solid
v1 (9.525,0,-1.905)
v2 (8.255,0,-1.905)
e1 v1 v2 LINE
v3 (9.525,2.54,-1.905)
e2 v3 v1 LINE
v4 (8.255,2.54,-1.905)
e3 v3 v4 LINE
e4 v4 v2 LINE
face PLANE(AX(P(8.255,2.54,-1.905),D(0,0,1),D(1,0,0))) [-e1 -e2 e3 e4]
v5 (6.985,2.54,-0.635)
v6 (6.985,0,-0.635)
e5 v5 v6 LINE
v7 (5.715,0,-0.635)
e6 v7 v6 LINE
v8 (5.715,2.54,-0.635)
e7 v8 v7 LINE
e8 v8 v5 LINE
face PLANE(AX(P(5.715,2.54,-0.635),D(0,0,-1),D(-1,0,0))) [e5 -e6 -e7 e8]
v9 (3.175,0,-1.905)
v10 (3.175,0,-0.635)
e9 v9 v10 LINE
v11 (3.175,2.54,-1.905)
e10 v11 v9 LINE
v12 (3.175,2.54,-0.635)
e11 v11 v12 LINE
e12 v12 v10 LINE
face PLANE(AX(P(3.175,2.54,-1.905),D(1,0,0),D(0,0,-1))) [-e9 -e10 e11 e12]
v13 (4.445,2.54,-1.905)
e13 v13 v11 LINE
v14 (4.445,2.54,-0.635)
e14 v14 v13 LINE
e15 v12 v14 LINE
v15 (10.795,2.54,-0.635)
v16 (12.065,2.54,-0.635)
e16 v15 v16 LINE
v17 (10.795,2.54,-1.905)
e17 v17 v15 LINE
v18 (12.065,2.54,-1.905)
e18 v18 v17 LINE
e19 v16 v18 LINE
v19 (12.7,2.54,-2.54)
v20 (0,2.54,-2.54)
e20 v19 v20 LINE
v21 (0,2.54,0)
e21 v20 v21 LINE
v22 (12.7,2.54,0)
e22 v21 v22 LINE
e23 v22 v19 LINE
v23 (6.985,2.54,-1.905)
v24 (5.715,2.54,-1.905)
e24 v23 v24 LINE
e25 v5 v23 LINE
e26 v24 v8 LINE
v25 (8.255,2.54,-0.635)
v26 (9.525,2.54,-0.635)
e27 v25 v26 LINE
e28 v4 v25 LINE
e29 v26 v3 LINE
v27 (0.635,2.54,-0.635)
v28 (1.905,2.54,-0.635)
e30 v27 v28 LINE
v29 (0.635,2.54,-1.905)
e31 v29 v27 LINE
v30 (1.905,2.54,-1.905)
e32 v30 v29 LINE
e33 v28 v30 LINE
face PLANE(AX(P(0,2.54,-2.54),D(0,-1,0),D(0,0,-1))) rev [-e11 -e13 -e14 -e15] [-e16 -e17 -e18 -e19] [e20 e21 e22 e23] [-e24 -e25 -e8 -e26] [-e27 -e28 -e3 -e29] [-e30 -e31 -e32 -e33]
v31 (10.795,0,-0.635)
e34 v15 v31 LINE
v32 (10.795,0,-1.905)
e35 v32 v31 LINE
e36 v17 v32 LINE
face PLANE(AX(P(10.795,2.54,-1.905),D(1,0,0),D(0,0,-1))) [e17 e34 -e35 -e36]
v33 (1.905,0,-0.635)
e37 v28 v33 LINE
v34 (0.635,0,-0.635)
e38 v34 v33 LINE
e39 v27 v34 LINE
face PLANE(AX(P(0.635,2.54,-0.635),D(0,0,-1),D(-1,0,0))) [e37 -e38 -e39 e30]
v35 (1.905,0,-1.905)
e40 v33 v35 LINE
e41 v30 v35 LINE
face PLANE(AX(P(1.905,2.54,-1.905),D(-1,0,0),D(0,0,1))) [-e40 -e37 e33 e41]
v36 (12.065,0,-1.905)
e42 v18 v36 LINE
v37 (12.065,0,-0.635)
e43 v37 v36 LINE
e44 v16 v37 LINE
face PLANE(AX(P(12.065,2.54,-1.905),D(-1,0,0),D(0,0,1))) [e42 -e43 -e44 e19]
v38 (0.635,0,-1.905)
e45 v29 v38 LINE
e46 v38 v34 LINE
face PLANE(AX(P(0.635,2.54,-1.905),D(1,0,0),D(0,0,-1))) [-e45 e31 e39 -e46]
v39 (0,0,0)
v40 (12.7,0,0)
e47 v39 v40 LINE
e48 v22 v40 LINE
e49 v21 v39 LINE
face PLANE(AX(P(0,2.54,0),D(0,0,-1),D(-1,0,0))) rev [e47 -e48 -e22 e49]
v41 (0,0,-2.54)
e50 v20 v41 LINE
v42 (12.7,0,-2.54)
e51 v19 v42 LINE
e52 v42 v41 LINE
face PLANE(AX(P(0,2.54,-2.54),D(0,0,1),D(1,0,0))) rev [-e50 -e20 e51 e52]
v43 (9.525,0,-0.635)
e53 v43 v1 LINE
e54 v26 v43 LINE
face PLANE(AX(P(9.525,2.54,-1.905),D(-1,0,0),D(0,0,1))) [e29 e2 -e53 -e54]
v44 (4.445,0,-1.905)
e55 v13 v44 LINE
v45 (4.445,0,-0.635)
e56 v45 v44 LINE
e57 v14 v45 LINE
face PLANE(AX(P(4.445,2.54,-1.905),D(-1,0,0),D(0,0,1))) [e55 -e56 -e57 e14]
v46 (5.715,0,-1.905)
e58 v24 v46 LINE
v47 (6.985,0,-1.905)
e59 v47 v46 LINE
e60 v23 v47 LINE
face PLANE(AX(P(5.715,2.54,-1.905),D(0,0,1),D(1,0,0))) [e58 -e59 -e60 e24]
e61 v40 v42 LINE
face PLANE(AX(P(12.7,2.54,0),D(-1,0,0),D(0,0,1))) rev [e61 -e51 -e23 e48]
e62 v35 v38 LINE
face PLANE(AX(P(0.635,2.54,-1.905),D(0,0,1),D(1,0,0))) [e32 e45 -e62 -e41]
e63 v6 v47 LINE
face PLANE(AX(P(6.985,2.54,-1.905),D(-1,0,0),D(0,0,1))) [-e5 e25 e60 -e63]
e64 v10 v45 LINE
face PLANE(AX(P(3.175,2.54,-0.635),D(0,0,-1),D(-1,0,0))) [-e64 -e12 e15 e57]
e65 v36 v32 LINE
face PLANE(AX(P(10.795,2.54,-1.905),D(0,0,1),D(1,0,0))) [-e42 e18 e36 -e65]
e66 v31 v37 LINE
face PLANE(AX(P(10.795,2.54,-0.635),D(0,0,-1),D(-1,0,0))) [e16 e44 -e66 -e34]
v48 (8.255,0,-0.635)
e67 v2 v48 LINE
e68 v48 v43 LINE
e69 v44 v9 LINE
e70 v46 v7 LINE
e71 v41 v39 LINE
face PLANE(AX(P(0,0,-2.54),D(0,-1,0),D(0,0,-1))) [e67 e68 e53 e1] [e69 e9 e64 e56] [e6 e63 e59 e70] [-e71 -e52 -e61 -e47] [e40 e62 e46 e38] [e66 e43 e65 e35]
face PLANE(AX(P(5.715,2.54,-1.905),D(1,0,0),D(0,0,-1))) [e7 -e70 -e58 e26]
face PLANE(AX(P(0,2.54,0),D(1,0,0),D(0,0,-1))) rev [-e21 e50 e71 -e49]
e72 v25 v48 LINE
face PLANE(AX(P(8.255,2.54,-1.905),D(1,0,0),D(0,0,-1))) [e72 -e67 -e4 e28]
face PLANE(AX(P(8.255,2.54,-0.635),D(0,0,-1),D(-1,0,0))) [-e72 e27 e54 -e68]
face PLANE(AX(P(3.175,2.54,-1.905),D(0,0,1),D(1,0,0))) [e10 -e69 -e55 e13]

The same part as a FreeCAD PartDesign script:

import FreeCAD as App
import Part
import Sketcher

V = App.Vector
Q = App.Units.Quantity


def add_polygon(sketch, points):
    """Adds a closed chain of lines whose ends are joined by coincident constraints."""
    first, n = sketch.GeometryCount, len(points)
    for a, b in zip(points, points[1:] + points[:1]):
        sketch.addGeometry(Part.LineSegment(App.Vector(*a, 0), App.Vector(*b, 0)), False)
    for i in range(n):
        sketch.addConstraint(Sketcher.Constraint("Coincident", first + i, 2, first + (i + 1) % n, 1))

doc = App.newDocument("Part")
body = doc.addObject("PartDesign::Body", "Body")

# Sketch on XZ plane
sketch1 = body.newObject("Sketcher::SketchObject", "Sketch")
sketch1.AttachmentSupport = (doc.getObject("XZ_Plane"), [""])
sketch1.MapMode = "FlatFace"
add_polygon(sketch1, [(0, -2.5), (0, 0), (12.7, 0), (12.7, -2.5)])  # lines 0-3
add_polygon(sketch1, [(1.9, -0.6), (0.6, -0.6), (0.6, -1.9), (1.9, -1.9)])  # lines 4-7
add_polygon(sketch1, [(4.4, -0.6), (3.2, -0.6), (3.2, -1.9), (4.4, -1.9)])  # lines 8-11
add_polygon(sketch1, [(7, -0.6), (5.7, -0.6), (5.7, -1.9), (7, -1.9)])  # lines 12-15
add_polygon(sketch1, [(9.5, -0.6), (8.3, -0.6), (8.3, -1.9), (9.5, -1.9)])  # lines 16-19
add_polygon(sketch1, [(12.1, -0.6), (10.8, -0.6), (10.8, -1.9), (12.1, -1.9)])  # lines 20-23
sketch1.addConstraint(Sketcher.Constraint("Vertical", 0))
sketch1.addConstraint(Sketcher.Constraint("Horizontal", 1))
sketch1.addConstraint(Sketcher.Constraint("Vertical", 2))
sketch1.addConstraint(Sketcher.Constraint("Horizontal", 3))
sketch1.addConstraint(Sketcher.Constraint("Horizontal", 4))
sketch1.addConstraint(Sketcher.Constraint("Vertical", 5))
sketch1.addConstraint(Sketcher.Constraint("Horizontal", 6))
sketch1.addConstraint(Sketcher.Constraint("Vertical", 7))
sketch1.addConstraint(Sketcher.Constraint("Horizontal", 8))
sketch1.addConstraint(Sketcher.Constraint("Vertical", 9))
sketch1.addConstraint(Sketcher.Constraint("Horizontal", 10))
sketch1.addConstraint(Sketcher.Constraint("Vertical", 11))
sketch1.addConstraint(Sketcher.Constraint("Horizontal", 12))
sketch1.addConstraint(Sketcher.Constraint("Vertical", 13))
sketch1.addConstraint(Sketcher.Constraint("Horizontal", 14))
sketch1.addConstraint(Sketcher.Constraint("Vertical", 15))
sketch1.addConstraint(Sketcher.Constraint("Horizontal", 16))
sketch1.addConstraint(Sketcher.Constraint("Vertical", 17))
sketch1.addConstraint(Sketcher.Constraint("Horizontal", 18))
sketch1.addConstraint(Sketcher.Constraint("Vertical", 19))
sketch1.addConstraint(Sketcher.Constraint("Horizontal", 20))
sketch1.addConstraint(Sketcher.Constraint("Vertical", 21))
sketch1.addConstraint(Sketcher.Constraint("Horizontal", 22))
sketch1.addConstraint(Sketcher.Constraint("Vertical", 23))
sketch1.addConstraint(Sketcher.Constraint("Coincident", 0, 2, -1, 1))
sketch1.addConstraint(Sketcher.Constraint("Horizontal", 7, 2, 8, 2))
sketch1.addConstraint(Sketcher.Constraint("Horizontal", 6, 2, 9, 2))
sketch1.addConstraint(Sketcher.Constraint("Horizontal", 11, 2, 12, 2))
sketch1.addConstraint(Sketcher.Constraint("Horizontal", 10, 2, 13, 2))
sketch1.addConstraint(Sketcher.Constraint("Horizontal", 15, 2, 16, 2))
sketch1.addConstraint(Sketcher.Constraint("Horizontal", 14, 2, 17, 2))
sketch1.addConstraint(Sketcher.Constraint("Horizontal", 19, 2, 20, 2))
sketch1.addConstraint(Sketcher.Constraint("Horizontal", 18, 2, 21, 2))
sketch1.addConstraint(Sketcher.Constraint("Equal", 6, 8))
sketch1.addConstraint(Sketcher.Constraint("Equal", 10, 12))
sketch1.addConstraint(Sketcher.Constraint("Equal", 14, 16))
sketch1.addConstraint(Sketcher.Constraint("Equal", 18, 20))
sketch1.addConstraint(Sketcher.Constraint("Equal", 22, 5))
sketch1.addConstraint(Sketcher.Constraint("DistanceX", 1, 1, 1, 2, Q("0.5 in")))
sketch1.addConstraint(Sketcher.Constraint("DistanceY", 0, 1, 0, 2, Q("0.1 in")))
sketch1.addConstraint(Sketcher.Constraint("DistanceX", 4, 2, 4, 1, Q("0.05 in")))
sketch1.addConstraint(Sketcher.Constraint("DistanceX", 4, 2, 8, 2, Q("0.1 in")))
sketch1.addConstraint(Sketcher.Constraint("DistanceX", 8, 2, 12, 2, Q("0.1 in")))
sketch1.addConstraint(Sketcher.Constraint("DistanceX", 12, 2, 16, 2, Q("0.1 in")))
sketch1.addConstraint(Sketcher.Constraint("DistanceX", 16, 2, 20, 2, Q("0.1 in")))
sketch1.addConstraint(Sketcher.Constraint("DistanceX", -1, 1, 4, 2, Q("0.025 in")))
sketch1.addConstraint(Sketcher.Constraint("DistanceY", 4, 2, -1, 1, Q("0.025 in")))
pad1 = body.newObject("PartDesign::Pad", "Pad")
pad1.Profile = sketch1
pad1.Length = Q("0.1 in")
pad1.Reversed = True

doc.recompute()
